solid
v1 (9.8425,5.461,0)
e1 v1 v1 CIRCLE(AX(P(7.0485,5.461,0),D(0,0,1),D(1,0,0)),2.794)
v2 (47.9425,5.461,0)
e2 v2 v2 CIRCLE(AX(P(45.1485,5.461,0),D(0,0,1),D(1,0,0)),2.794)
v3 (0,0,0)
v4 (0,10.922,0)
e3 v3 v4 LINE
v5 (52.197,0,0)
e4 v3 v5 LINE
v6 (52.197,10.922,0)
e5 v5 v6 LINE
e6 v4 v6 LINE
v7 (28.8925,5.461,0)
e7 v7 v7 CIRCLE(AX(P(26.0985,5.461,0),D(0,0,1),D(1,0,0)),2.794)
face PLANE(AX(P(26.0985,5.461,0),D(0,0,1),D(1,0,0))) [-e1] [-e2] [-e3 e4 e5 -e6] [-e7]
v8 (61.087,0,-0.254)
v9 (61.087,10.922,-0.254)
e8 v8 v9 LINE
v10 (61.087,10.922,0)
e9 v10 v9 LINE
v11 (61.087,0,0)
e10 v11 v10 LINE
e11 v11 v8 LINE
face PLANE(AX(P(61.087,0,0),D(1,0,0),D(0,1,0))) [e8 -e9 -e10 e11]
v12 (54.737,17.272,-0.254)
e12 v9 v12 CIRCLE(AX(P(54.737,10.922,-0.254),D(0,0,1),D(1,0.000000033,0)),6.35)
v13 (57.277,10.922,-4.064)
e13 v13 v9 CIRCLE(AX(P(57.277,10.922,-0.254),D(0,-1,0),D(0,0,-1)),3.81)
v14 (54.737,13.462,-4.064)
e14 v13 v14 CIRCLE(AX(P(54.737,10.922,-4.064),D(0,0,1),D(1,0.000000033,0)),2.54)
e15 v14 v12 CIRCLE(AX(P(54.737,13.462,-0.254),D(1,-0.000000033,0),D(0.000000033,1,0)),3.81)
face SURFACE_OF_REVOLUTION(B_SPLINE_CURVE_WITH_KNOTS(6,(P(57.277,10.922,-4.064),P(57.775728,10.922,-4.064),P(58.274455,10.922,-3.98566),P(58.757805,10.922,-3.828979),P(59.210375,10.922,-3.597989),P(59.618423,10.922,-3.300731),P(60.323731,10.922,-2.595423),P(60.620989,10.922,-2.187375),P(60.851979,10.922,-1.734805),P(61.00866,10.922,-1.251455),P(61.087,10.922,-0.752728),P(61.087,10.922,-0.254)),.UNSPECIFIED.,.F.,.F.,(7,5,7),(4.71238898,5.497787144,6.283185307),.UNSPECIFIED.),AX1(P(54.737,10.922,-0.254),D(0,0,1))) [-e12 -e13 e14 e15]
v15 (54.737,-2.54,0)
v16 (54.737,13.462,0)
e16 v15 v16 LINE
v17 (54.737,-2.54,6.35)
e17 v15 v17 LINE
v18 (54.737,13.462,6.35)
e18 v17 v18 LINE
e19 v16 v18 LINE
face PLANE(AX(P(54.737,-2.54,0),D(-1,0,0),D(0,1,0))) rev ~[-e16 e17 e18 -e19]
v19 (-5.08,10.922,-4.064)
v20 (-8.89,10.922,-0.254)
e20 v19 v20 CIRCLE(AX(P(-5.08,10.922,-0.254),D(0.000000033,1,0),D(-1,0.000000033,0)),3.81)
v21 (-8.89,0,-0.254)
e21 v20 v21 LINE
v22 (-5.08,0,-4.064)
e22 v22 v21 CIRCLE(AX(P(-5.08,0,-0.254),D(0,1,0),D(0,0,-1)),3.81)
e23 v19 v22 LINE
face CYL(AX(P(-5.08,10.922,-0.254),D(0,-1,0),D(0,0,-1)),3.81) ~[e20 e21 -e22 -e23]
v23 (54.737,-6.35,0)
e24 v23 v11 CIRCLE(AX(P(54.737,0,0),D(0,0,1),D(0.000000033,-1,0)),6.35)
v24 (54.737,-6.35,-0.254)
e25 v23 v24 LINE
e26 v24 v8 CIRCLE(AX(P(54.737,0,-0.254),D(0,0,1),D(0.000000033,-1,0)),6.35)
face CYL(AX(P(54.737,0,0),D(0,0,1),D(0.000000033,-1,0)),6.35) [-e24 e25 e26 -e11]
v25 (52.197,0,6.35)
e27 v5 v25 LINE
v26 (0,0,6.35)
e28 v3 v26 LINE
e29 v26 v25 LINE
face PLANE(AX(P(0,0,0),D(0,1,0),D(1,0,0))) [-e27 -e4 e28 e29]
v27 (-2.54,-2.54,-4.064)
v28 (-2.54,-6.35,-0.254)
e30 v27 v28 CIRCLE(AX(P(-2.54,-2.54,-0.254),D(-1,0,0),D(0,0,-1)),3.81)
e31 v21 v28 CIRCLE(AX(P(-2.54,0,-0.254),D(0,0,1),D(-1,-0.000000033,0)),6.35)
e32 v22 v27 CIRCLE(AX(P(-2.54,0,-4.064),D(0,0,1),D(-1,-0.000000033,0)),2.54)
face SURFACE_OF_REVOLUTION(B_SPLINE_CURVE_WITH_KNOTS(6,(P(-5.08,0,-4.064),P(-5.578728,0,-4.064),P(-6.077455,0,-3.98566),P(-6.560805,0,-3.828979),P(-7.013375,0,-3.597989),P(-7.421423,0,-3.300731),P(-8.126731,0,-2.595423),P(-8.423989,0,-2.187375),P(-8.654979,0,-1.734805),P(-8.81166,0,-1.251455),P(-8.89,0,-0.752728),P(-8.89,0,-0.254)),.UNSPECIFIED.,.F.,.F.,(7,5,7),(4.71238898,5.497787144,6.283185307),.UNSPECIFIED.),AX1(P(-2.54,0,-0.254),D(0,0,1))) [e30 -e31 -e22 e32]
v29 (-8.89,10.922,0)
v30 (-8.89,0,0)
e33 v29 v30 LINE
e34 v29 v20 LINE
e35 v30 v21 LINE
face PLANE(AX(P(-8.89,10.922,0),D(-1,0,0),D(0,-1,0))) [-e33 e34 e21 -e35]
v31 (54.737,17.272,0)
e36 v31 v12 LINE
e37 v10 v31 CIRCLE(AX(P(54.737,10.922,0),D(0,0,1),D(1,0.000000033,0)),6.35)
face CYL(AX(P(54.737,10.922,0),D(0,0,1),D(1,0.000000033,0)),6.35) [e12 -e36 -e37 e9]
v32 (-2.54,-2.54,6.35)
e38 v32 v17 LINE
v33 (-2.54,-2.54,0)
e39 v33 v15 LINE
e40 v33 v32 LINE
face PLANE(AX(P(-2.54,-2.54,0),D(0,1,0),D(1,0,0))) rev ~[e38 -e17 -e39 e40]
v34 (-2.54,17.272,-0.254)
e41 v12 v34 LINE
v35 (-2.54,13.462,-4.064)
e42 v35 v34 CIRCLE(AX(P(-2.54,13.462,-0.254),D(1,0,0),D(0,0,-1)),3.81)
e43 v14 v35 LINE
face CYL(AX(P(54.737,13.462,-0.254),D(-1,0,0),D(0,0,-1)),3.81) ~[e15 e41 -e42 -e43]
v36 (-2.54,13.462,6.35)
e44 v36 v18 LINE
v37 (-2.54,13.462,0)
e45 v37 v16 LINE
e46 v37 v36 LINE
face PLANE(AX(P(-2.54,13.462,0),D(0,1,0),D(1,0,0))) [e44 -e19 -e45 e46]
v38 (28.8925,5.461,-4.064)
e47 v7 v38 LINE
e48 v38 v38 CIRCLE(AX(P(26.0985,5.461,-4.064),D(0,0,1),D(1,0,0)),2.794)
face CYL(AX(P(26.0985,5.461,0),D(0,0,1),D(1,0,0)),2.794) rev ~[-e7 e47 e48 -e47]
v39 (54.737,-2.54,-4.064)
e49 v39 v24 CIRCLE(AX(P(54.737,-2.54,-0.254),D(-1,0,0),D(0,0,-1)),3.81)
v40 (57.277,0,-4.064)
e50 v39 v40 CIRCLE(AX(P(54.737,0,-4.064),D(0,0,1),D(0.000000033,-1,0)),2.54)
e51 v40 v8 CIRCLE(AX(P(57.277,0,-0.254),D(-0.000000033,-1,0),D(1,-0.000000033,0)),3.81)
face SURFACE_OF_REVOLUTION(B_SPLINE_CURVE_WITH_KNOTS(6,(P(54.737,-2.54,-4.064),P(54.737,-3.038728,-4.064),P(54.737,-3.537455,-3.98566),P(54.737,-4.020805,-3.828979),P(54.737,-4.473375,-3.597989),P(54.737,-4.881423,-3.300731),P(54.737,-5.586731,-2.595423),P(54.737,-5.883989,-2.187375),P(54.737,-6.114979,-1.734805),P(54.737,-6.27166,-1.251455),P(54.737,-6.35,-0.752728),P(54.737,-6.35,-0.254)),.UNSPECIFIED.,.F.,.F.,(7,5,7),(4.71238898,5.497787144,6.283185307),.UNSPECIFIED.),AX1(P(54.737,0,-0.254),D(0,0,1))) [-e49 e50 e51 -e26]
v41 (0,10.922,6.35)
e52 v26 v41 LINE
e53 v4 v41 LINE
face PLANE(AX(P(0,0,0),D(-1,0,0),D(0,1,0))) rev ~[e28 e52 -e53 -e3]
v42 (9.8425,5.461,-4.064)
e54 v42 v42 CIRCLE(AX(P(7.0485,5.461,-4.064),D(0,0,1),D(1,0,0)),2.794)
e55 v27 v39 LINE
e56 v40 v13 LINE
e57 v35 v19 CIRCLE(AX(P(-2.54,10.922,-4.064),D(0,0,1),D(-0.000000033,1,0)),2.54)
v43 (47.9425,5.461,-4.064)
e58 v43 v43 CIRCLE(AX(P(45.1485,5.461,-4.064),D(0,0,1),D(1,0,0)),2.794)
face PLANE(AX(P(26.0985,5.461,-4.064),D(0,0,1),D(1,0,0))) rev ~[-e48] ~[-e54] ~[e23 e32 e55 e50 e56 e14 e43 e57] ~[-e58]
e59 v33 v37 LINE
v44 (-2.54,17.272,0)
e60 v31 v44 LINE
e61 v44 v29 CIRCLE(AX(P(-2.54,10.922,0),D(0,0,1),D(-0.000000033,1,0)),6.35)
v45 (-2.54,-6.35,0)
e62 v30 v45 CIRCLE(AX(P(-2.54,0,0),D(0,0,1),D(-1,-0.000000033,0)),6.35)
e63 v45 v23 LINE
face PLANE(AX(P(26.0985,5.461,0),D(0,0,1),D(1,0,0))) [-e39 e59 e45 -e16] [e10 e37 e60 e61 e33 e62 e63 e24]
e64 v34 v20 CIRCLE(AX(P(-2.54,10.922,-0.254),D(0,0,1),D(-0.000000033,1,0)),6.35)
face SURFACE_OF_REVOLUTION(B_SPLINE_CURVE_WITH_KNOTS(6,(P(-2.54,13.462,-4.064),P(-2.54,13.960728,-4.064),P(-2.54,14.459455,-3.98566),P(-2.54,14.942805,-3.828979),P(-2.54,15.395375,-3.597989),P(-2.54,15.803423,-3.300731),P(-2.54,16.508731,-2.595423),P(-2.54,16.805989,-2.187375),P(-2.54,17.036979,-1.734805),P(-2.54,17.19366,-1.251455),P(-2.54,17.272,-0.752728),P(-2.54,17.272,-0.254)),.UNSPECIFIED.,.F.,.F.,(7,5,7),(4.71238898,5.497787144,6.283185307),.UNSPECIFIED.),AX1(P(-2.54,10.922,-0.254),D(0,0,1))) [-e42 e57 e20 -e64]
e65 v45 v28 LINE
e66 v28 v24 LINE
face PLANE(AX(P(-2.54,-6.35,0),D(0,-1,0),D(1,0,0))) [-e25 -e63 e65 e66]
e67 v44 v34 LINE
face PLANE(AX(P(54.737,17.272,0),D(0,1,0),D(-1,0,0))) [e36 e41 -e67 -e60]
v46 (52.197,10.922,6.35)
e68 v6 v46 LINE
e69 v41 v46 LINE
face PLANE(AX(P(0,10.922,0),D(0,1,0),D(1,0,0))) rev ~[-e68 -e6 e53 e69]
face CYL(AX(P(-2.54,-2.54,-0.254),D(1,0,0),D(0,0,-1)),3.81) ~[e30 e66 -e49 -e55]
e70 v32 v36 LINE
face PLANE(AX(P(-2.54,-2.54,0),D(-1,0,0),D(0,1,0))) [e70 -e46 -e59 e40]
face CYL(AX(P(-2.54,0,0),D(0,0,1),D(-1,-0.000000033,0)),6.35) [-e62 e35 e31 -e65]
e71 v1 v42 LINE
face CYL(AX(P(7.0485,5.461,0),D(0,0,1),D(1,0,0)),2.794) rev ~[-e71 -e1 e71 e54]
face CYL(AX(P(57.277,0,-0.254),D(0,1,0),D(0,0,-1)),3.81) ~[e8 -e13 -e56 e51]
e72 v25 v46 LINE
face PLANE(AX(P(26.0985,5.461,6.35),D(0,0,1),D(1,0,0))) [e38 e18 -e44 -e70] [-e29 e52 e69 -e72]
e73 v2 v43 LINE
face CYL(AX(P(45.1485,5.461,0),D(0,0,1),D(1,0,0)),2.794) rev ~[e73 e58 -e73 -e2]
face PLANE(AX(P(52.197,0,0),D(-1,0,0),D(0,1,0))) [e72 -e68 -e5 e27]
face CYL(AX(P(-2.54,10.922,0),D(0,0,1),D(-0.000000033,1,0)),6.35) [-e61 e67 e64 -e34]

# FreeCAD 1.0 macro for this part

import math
import FreeCAD as App
import Part
import Sketcher
Q = App.Units.Quantity


def edges_at(feature, points):
    """Names of the edges that pass closest to the given points."""
    edges = feature.Shape.Edges
    near = lambda p: min(range(len(edges)), key=lambda i: edges[i].distToShape(Part.Vertex(*p))[0])
    return sorted({f"Edge{near(p) + 1}" for p in points})


def add_polygon(sketch, points):
    """Adds a closed chain of lines whose ends are joined by coincident constraints."""
    first, n = sketch.GeometryCount, len(points)
    for a, b in zip(points, points[1:] + points[:1]):
        sketch.addGeometry(Part.LineSegment(App.Vector(*a, 0), App.Vector(*b, 0)), False)
    for i in range(n):
        sketch.addConstraint(Sketcher.Constraint("Coincident", first + i, 2, first + (i + 1) % n, 1))

doc = App.newDocument("Part")
body = doc.addObject("PartDesign::Body", "Body")

# Sketch on XY plane
sketch1 = doc.addObject("Sketcher::SketchObject", "Sketch")
body.addObject(sketch1)
sketch1.AttachmentSupport = (doc.XY_Plane, [""])
sketch1.MapMode = "FlatFace"
sketch1.addGeometry(Part.LineSegment(App.Vector(54.7, 17.3, 0), App.Vector(-2.5, 17.3, 0)), False)
sketch1.addGeometry(Part.ArcOfCircle(Part.Circle(App.Vector(-2.5, 10.9, 0), App.Vector(0, 0, 1), 6.4), math.radians(90), math.radians(180)), False)
sketch1.addGeometry(Part.LineSegment(App.Vector(-8.9, 10.9, 0), App.Vector(-8.9, 0, 0)), False)
sketch1.addGeometry(Part.ArcOfCircle(Part.Circle(App.Vector(-2.5, 0, 0), App.Vector(0, 0, 1), 6.4), math.radians(-180), math.radians(-90)), False)
sketch1.addGeometry(Part.LineSegment(App.Vector(-2.5, -6.3, 0), App.Vector(54.7, -6.3, 0)), False)
sketch1.addGeometry(Part.ArcOfCircle(Part.Circle(App.Vector(54.7, 0, 0), App.Vector(0, 0, 1), 6.4), math.radians(-90), math.radians(0)), False)
sketch1.addGeometry(Part.LineSegment(App.Vector(61.1, 0, 0), App.Vector(61.1, 10.9, 0)), False)
sketch1.addGeometry(Part.ArcOfCircle(Part.Circle(App.Vector(54.7, 10.9, 0), App.Vector(0, 0, 1), 6.4), math.radians(0), math.radians(90)), False)
sketch1.addGeometry(Part.Circle(App.Vector(7, 5.5, 0), App.Vector(0, 0, 1), 2.8), False)
sketch1.addGeometry(Part.Circle(App.Vector(26.1, 5.5, 0), App.Vector(0, 0, 1), 2.8), False)
sketch1.addGeometry(Part.Circle(App.Vector(45.1, 5.5, 0), App.Vector(0, 0, 1), 2.8), False)
sketch1.addConstraint(Sketcher.Constraint("Tangent", 0, 2, 1, 1))
sketch1.addConstraint(Sketcher.Constraint("Tangent", 1, 2, 2, 1))
sketch1.addConstraint(Sketcher.Constraint("Tangent", 2, 2, 3, 1))
sketch1.addConstraint(Sketcher.Constraint("Tangent", 3, 2, 4, 1))
sketch1.addConstraint(Sketcher.Constraint("Tangent", 4, 2, 5, 1))
sketch1.addConstraint(Sketcher.Constraint("Tangent", 5, 2, 6, 1))
sketch1.addConstraint(Sketcher.Constraint("Tangent", 6, 2, 7, 1))
sketch1.addConstraint(Sketcher.Constraint("Tangent", 7, 2, 0, 1))
sketch1.addConstraint(Sketcher.Constraint("Horizontal", 0))
sketch1.addConstraint(Sketcher.Constraint("Vertical", 2))
sketch1.addConstraint(Sketcher.Constraint("Horizontal", 4))
sketch1.addConstraint(Sketcher.Constraint("Vertical", 6))
sketch1.addConstraint(Sketcher.Constraint("Equal", 1, 3))
sketch1.addConstraint(Sketcher.Constraint("Equal", 3, 5))
sketch1.addConstraint(Sketcher.Constraint("Equal", 5, 7))
sketch1.addConstraint(Sketcher.Constraint("Equal", 8, 9))
sketch1.addConstraint(Sketcher.Constraint("Equal", 9, 10))
sketch1.addConstraint(Sketcher.Constraint("PointOnObject", 3, 3, -1))
sketch1.addConstraint(Sketcher.Constraint("Horizontal", 8, 3, 9, 3))
sketch1.addConstraint(Sketcher.Constraint("Horizontal", 9, 3, 10, 3))
sketch1.addConstraint(Sketcher.Constraint("Diameter", 8, Q("0.22 in")))
sketch1.addConstraint(Sketcher.Constraint("Radius", 1, Q("0.25 in")))
sketch1.addConstraint(Sketcher.Constraint("DistanceY", 2, 2, 2, 1, Q("0.43 in")))
sketch1.addConstraint(Sketcher.Constraint("DistanceX", 1, 3, -1, 1, Q("0.1 in")))
sketch1.addConstraint(Sketcher.Constraint("DistanceX", 8, 3, 10, 3, Q("1.5 in")))
sketch1.addConstraint(Sketcher.Constraint("DistanceX", 0, 2, 0, 1, Q("2.255 in")))
sketch1.addConstraint(Sketcher.Constraint("DistanceX", 8, 3, 9, 3, Q("0.75 in")))
sketch1.addConstraint(Sketcher.Constraint("DistanceY", -1, 1, 8, 3, Q("0.215 in")))
sketch1.addConstraint(Sketcher.Constraint("DistanceX", -1, 1, 8, 3, Q("0.2775 in")))
pad1 = doc.addObject("PartDesign::Pad", "Pad")
body.addObject(pad1)
pad1.Profile = sketch1
pad1.Length = Q("0.16 in")
pad1.Reversed = True

# Sketch on XY plane
sketch2 = doc.addObject("Sketcher::SketchObject", "Sketch001")
body.addObject(sketch2)
sketch2.AttachmentSupport = (doc.XY_Plane, [""])
sketch2.MapMode = "FlatFace"
add_polygon(sketch2, [(-3, 13), (-3, -3), (55, -3), (55, 13)])  # lines 0-3
add_polygon(sketch2, [(52, 0), (0, 0), (0, 11), (52, 11)])  # lines 4-7
sketch2.addConstraint(Sketcher.Constraint("Vertical", 0))
sketch2.addConstraint(Sketcher.Constraint("Horizontal", 1))
sketch2.addConstraint(Sketcher.Constraint("Vertical", 2))
sketch2.addConstraint(Sketcher.Constraint("Horizontal", 3))
sketch2.addConstraint(Sketcher.Constraint("Horizontal", 4))
sketch2.addConstraint(Sketcher.Constraint("Vertical", 5))
sketch2.addConstraint(Sketcher.Constraint("Horizontal", 6))
sketch2.addConstraint(Sketcher.Constraint("Vertical", 7))
sketch2.addConstraint(Sketcher.Constraint("Coincident", 4, 2, -1, 1))
sketch2.addConstraint(Sketcher.Constraint("DistanceY", 0, 2, 0, 1, Q("0.63 in")))
sketch2.addConstraint(Sketcher.Constraint("DistanceY", 5, 1, 5, 2, Q("0.43 in")))
sketch2.addConstraint(Sketcher.Constraint("DistanceX", 0, 2, -1, 1, Q("0.1 in")))
sketch2.addConstraint(Sketcher.Constraint("DistanceY", 0, 2, -1, 1, Q("0.1 in")))
sketch2.addConstraint(Sketcher.Constraint("DistanceX", 6, 2, 2, 2, Q("0.1 in")))
sketch2.addConstraint(Sketcher.Constraint("DistanceX", 1, 1, 1, 2, Q("2.255 in")))
pad2 = doc.addObject("PartDesign::Pad", "Pad001")
body.addObject(pad2)
pad2.Profile = sketch2
pad2.Length = Q("0.25 in")
doc.recompute()

fillet = doc.addObject("PartDesign::Fillet", "Fillet")
body.addObject(fillet)
fillet.Base = (pad2, edges_at(pad2, [(26.099, -6.35, -4.064)]))
fillet.Radius = Q("0.15 in")

doc.recompute()
